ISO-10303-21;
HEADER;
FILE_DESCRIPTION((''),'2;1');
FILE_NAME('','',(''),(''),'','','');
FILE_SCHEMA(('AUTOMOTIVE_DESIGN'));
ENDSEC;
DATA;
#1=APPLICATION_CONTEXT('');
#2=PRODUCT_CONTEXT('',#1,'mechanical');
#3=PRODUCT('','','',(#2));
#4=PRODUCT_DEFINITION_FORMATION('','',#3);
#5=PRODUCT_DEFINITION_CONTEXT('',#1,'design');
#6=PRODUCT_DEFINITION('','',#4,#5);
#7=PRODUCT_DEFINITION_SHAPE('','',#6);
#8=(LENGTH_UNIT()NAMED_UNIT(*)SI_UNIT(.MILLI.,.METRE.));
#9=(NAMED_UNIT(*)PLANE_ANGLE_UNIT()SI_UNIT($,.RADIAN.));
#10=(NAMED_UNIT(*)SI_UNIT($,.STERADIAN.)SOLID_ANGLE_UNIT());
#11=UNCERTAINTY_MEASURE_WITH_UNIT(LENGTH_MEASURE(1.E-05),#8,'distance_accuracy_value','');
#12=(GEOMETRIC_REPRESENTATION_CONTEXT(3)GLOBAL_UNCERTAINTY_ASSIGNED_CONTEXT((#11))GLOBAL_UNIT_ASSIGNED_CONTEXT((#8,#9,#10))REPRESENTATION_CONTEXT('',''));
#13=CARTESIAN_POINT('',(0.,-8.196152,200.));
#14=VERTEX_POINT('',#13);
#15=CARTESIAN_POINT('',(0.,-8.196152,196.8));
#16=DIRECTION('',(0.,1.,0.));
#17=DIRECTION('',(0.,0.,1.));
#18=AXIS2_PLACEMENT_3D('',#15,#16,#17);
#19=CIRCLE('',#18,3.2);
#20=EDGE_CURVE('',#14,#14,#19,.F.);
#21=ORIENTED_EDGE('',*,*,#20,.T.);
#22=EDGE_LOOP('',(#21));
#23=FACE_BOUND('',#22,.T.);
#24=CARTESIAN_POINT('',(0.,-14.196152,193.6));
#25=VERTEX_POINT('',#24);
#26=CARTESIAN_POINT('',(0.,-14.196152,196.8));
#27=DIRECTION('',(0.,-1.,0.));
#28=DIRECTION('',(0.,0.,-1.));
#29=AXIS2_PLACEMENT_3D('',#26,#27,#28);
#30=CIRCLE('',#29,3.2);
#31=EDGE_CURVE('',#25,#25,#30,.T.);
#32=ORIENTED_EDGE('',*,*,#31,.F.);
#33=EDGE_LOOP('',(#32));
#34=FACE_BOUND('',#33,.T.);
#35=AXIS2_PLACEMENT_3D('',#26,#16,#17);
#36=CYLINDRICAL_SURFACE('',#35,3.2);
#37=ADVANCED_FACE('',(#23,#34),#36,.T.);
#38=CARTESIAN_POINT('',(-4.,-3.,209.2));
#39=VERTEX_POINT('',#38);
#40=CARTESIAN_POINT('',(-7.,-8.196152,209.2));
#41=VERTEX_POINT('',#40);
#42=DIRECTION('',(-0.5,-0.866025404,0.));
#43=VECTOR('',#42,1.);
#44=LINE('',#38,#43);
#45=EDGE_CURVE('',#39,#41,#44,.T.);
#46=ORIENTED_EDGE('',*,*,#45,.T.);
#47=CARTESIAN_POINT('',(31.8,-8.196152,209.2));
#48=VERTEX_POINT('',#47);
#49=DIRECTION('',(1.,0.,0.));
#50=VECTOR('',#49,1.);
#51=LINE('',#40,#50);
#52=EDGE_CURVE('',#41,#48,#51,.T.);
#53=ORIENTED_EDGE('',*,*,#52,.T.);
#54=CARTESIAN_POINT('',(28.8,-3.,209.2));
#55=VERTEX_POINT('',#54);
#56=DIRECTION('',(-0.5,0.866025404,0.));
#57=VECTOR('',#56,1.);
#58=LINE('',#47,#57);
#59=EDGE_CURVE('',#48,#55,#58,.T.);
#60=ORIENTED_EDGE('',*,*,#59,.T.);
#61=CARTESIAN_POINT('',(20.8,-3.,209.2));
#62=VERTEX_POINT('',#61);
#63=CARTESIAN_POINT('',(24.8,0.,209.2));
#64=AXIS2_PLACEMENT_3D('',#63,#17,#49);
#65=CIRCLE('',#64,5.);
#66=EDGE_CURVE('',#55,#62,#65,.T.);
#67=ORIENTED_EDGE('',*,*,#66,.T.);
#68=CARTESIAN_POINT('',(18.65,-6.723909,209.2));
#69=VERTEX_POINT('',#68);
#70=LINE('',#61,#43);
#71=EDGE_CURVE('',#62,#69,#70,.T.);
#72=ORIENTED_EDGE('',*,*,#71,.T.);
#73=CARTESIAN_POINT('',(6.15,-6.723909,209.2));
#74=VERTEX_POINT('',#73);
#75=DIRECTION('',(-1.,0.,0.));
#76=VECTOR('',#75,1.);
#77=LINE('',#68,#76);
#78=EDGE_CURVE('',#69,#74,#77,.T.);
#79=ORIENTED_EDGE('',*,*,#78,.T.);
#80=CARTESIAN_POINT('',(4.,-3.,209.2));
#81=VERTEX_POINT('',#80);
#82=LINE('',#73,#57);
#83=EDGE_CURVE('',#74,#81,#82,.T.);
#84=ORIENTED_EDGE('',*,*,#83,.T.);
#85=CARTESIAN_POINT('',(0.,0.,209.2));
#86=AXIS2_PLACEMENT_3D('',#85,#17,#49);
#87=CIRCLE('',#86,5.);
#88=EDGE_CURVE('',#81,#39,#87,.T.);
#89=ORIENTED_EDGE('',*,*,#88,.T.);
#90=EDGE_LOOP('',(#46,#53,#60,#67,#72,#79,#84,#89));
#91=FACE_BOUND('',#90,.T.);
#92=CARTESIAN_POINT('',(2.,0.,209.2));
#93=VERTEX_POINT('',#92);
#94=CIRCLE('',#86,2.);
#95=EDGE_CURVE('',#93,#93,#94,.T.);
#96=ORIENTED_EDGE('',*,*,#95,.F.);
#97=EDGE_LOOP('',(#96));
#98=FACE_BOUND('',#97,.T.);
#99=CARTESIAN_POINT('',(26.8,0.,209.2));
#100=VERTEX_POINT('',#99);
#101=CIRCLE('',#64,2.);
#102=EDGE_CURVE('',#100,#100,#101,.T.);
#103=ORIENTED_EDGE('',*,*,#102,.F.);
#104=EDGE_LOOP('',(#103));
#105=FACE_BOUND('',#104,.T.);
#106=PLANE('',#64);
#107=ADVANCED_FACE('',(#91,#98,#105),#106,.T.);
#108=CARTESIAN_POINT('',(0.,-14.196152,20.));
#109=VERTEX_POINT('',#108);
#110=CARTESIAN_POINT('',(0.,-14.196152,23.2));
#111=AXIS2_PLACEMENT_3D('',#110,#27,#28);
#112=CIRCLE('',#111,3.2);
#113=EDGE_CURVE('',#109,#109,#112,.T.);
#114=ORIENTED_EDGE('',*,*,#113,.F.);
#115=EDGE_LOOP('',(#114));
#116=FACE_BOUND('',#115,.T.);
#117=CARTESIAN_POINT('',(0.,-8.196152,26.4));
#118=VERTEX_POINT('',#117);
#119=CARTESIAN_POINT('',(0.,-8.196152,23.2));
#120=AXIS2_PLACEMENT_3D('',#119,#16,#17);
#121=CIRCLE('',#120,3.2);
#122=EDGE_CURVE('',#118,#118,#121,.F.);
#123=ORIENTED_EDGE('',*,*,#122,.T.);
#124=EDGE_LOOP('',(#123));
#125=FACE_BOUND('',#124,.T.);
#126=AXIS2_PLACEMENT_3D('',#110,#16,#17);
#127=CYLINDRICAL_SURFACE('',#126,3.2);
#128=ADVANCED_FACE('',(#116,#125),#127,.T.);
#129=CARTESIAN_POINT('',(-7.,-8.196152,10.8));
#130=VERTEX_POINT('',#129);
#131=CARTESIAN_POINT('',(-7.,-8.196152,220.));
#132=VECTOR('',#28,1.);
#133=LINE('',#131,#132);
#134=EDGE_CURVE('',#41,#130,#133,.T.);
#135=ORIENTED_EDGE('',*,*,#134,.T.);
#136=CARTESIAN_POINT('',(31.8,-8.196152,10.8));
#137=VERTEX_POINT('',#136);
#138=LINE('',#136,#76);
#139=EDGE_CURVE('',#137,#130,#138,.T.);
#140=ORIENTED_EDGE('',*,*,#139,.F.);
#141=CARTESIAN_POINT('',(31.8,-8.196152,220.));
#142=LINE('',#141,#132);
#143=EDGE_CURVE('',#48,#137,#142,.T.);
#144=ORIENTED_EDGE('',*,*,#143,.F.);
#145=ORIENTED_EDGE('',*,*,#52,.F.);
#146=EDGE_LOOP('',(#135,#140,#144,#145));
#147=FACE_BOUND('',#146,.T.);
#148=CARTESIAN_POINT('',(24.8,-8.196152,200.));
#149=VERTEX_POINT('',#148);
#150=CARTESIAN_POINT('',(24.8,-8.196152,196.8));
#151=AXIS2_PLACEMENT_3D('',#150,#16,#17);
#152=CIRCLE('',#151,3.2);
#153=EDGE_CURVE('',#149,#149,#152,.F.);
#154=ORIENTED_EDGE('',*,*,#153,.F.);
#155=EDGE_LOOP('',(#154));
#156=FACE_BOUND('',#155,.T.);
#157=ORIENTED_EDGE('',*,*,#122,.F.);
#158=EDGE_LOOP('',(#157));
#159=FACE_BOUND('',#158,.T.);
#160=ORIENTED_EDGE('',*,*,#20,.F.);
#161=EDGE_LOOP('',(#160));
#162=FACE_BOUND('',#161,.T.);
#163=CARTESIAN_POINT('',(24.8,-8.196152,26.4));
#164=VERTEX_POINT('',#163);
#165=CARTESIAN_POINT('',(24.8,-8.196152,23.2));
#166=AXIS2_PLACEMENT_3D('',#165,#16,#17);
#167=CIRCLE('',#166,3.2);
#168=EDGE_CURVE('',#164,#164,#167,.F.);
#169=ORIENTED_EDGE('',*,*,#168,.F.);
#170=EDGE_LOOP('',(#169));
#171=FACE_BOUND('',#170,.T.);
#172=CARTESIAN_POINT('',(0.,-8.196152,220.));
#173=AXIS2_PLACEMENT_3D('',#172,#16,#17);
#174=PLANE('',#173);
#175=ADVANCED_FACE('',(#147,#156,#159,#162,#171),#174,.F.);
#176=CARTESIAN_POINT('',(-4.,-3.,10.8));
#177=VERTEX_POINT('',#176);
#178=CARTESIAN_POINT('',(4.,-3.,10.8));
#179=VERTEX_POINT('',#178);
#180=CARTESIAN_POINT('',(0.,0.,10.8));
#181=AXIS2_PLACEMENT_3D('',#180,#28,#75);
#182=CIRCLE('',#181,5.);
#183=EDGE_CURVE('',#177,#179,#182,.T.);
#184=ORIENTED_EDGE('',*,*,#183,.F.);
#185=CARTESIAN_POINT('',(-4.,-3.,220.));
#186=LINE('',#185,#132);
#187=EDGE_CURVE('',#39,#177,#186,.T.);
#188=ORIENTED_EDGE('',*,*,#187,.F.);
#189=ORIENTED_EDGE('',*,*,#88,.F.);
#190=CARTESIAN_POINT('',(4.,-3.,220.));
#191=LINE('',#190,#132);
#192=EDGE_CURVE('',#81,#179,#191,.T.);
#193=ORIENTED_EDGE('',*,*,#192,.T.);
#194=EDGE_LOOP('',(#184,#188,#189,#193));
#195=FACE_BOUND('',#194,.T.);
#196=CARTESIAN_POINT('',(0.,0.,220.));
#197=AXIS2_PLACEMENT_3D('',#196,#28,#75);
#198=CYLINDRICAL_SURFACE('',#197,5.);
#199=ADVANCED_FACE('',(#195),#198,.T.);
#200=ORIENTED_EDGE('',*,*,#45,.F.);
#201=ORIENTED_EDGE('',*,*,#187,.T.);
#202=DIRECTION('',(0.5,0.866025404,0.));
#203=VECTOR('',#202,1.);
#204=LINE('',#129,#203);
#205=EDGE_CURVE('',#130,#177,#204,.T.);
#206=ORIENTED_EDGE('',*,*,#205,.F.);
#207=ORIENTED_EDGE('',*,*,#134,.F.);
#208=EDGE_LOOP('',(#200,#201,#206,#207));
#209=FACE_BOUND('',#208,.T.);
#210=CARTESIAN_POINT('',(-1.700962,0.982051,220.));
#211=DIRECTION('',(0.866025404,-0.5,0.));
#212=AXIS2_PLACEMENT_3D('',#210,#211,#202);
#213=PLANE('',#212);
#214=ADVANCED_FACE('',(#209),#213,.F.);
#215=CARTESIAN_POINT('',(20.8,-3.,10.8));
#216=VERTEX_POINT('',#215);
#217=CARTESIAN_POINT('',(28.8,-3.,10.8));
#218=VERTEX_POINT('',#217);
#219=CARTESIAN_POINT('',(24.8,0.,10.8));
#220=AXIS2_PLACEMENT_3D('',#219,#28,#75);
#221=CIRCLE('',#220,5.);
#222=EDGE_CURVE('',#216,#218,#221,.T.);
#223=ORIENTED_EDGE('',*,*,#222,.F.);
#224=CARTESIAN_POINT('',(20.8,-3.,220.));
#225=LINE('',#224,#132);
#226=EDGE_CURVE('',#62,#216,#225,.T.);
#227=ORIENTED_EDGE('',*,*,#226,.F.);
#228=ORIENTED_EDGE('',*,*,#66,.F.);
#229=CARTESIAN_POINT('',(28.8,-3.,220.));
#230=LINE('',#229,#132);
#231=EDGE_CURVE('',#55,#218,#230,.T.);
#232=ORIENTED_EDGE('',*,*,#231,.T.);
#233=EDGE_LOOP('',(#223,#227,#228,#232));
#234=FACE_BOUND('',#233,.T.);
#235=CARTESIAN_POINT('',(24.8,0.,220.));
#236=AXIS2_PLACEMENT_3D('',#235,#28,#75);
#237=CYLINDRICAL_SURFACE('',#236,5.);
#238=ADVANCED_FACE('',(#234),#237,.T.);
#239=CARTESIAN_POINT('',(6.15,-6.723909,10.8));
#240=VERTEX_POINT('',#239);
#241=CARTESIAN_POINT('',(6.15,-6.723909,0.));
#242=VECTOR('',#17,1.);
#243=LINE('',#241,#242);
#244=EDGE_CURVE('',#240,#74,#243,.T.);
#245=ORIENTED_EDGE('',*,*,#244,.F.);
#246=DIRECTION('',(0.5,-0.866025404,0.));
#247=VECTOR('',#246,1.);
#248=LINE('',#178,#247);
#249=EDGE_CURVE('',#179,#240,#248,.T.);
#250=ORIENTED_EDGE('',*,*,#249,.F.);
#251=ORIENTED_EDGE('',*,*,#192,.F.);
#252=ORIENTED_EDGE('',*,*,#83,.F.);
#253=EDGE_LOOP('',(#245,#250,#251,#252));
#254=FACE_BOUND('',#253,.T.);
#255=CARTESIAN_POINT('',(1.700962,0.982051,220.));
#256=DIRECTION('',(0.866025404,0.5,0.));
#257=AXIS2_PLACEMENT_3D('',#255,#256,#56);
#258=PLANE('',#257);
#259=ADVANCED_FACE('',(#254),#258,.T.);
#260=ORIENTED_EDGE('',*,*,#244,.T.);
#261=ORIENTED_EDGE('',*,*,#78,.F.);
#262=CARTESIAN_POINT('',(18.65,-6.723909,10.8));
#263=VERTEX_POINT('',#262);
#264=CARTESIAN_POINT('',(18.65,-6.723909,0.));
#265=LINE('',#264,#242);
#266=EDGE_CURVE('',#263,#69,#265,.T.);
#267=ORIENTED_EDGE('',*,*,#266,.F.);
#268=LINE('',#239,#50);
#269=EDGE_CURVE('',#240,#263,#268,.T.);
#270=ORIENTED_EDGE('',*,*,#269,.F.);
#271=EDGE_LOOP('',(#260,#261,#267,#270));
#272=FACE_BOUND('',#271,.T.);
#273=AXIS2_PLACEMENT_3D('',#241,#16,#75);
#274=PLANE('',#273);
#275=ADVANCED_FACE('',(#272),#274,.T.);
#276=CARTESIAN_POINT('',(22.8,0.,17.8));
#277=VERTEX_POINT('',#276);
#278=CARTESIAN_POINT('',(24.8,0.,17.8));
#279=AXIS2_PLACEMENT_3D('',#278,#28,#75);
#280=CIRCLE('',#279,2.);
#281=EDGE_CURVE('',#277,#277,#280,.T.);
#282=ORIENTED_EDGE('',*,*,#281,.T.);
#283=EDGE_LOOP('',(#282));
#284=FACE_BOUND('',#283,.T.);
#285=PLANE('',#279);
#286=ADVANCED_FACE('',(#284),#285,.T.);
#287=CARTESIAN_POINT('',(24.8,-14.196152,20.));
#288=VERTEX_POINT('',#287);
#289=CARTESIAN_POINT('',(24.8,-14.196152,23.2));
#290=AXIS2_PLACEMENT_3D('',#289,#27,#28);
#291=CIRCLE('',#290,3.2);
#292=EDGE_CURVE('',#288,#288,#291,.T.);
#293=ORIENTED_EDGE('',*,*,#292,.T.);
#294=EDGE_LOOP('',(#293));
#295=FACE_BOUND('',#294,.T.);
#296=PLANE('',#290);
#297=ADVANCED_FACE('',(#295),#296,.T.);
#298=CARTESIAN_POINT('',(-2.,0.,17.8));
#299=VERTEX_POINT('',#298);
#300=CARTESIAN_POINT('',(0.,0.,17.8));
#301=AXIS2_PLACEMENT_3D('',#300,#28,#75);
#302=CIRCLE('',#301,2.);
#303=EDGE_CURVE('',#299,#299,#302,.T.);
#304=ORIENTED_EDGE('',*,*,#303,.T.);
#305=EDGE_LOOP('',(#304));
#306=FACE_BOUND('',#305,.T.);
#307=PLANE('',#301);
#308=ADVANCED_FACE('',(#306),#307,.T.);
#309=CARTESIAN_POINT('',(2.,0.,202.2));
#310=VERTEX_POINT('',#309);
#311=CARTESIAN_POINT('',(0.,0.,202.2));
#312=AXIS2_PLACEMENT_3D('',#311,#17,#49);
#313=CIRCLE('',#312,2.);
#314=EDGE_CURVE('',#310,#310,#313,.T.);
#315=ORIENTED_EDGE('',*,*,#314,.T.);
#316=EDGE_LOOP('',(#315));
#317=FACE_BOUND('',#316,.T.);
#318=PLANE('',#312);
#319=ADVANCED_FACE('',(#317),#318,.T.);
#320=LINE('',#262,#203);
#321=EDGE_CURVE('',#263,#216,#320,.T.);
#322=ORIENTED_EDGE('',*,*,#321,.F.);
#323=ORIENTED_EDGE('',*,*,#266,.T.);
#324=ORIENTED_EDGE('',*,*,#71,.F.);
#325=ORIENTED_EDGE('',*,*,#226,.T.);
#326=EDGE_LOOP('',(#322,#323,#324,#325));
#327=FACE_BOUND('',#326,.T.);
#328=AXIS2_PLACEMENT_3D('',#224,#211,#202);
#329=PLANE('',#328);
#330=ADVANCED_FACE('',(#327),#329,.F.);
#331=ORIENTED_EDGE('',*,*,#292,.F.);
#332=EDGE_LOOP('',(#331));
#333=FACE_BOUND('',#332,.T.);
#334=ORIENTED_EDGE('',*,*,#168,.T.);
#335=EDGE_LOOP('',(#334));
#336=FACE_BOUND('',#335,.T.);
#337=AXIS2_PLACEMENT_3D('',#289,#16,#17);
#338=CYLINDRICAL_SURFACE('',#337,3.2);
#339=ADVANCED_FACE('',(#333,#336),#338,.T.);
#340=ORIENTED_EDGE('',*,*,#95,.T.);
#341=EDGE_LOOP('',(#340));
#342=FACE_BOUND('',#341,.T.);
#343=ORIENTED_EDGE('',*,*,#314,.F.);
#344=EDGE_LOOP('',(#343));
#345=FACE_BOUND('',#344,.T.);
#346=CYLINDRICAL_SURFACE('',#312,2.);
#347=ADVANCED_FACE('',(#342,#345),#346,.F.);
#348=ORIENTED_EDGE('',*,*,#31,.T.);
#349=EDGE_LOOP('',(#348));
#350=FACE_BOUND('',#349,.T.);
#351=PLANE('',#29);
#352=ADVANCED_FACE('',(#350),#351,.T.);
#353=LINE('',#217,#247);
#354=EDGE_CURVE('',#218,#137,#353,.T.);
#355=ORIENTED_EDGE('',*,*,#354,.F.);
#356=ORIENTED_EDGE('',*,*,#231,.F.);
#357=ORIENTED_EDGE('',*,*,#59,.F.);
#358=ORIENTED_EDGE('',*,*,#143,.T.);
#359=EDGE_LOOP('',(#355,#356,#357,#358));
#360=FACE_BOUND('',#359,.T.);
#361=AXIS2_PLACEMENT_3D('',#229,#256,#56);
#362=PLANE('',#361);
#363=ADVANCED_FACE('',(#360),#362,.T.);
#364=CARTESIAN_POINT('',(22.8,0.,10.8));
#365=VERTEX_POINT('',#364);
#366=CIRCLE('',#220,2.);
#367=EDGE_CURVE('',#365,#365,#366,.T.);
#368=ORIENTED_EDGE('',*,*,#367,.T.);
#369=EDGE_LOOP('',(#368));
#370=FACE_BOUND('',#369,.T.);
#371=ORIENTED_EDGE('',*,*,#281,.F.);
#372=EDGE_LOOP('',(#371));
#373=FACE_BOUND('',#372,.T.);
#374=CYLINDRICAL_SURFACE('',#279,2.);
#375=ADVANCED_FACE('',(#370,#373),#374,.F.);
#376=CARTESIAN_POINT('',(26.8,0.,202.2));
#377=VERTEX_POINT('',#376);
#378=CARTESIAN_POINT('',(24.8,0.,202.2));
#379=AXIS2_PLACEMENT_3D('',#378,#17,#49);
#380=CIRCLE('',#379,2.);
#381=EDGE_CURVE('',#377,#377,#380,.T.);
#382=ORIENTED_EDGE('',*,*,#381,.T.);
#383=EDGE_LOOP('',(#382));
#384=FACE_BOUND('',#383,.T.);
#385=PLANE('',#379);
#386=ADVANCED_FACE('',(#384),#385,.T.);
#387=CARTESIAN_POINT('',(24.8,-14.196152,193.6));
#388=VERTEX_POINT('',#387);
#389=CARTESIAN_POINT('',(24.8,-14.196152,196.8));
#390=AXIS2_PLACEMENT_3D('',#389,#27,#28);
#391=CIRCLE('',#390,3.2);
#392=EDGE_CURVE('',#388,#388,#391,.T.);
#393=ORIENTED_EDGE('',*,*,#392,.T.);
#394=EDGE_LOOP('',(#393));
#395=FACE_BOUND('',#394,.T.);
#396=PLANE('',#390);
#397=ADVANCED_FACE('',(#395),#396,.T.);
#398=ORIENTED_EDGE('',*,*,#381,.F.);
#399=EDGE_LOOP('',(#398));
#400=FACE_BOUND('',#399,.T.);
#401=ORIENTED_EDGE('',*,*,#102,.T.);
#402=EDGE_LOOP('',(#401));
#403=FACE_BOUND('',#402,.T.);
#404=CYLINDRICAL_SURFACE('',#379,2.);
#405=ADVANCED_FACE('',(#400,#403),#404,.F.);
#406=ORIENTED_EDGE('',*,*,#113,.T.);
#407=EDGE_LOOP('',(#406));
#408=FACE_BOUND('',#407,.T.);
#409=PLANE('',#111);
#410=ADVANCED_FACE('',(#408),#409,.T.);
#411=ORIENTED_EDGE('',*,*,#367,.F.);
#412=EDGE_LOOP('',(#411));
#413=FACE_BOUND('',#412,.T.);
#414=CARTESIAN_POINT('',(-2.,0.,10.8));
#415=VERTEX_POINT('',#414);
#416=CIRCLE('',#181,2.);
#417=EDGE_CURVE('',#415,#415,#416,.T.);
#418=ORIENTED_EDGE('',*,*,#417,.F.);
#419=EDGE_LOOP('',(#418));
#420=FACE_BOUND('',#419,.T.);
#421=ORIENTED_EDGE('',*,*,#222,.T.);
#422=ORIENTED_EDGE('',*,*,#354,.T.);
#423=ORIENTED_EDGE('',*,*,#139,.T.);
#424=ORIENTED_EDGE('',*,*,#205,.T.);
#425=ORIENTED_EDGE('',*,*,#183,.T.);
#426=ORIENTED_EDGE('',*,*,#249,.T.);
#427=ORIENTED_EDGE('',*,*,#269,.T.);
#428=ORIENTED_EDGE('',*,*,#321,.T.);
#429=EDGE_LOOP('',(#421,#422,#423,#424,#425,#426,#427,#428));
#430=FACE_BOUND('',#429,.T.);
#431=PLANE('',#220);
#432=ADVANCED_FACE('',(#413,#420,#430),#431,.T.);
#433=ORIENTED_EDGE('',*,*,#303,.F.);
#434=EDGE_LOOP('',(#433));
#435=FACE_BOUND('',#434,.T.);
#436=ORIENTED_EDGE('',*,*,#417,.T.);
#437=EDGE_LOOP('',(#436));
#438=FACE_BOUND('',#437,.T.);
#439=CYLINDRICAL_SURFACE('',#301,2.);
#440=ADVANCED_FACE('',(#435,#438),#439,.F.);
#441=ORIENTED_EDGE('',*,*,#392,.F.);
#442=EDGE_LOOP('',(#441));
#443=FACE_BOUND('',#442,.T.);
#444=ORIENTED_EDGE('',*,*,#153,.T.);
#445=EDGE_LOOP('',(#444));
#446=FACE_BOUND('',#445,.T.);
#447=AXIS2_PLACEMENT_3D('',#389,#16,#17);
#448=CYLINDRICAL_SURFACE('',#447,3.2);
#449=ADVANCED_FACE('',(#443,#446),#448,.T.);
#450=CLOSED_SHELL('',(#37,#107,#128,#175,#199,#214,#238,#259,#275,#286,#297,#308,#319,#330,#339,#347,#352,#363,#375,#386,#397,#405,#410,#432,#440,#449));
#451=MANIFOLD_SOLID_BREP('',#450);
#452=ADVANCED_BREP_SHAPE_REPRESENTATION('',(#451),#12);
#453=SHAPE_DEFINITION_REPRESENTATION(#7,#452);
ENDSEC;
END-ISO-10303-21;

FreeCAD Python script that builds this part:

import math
import FreeCAD as App
import Part
import Sketcher
from FreeCAD import Vector
Q = App.Units.Quantity

doc = App.newDocument("Part")
body = doc.addObject("PartDesign::Body", "Body")
body.AllowCompound = True

# Sketch on XY plane
sketch1 = doc.addObject("Sketcher::SketchObject", "Sketch")
body.addObject(sketch1)
sketch1.AttachmentSupport = (doc.XY_Plane, [""])
sketch1.MapMode = "FlatFace"
sketch1.addGeometry(Part.LineSegment(Vector(-4, -3, 0), Vector(-7, -8, 0)), False)
sketch1.addGeometry(Part.LineSegment(Vector(-7, -8, 0), Vector(7, -8, 0)), False)
sketch1.addGeometry(Part.LineSegment(Vector(7, -8, 0), Vector(4, -3, 0)), False)
sketch1.addGeometry(Part.ArcOfCircle(Part.Circle(Vector(0, 0, 0), Vector(0, 0, 1), 5), math.radians(-37), math.radians(217)), False)
sketch1.addGeometry(Part.LineSegment(Vector(32, -8, 0), Vector(29, -3, 0)), False)
sketch1.addGeometry(Part.ArcOfCircle(Part.Circle(Vector(25, 0, 0), Vector(0, 0, 1), 5), math.radians(-37), math.radians(217)), False)
sketch1.addGeometry(Part.LineSegment(Vector(21, -3, 0), Vector(18, -8, 0)), False)
sketch1.addGeometry(Part.LineSegment(Vector(18, -8, 0), Vector(32, -8, 0)), False)
sketch1.addConstraint(Sketcher.Constraint("Coincident", 0, 2, 1, 1))
sketch1.addConstraint(Sketcher.Constraint("Coincident", 1, 2, 2, 1))
sketch1.addConstraint(Sketcher.Constraint("Coincident", 2, 2, 3, 1))
sketch1.addConstraint(Sketcher.Constraint("Coincident", 3, 2, 0, 1))
sketch1.addConstraint(Sketcher.Constraint("Coincident", 4, 2, 5, 1))
sketch1.addConstraint(Sketcher.Constraint("Coincident", 5, 2, 6, 1))
sketch1.addConstraint(Sketcher.Constraint("Coincident", 6, 2, 7, 1))
sketch1.addConstraint(Sketcher.Constraint("Coincident", 7, 2, 4, 1))
sketch1.addConstraint(Sketcher.Constraint("Horizontal", 1))
sketch1.addConstraint(Sketcher.Constraint("Horizontal", 7))
sketch1.addConstraint(Sketcher.Constraint("Coincident", 3, 3, -1, 1))
sketch1.addConstraint(Sketcher.Constraint("Equal", 3, 5))
sketch1.addConstraint(Sketcher.Constraint("PointOnObject", 5, 3, -1))
sketch1.addConstraint(Sketcher.Constraint("Parallel", 2, 4))
sketch1.addConstraint(Sketcher.Constraint("Parallel", 0, 6))
sketch1.addConstraint(Sketcher.Constraint("Horizontal", 2, 2, 3, 2))
sketch1.addConstraint(Sketcher.Constraint("Horizontal", 3, 2, 4, 2))
sketch1.addConstraint(Sketcher.Constraint("Horizontal", 4, 2, 5, 2))
sketch1.addConstraint(Sketcher.Constraint("Horizontal", 1, 2, 6, 2))
sketch1.addConstraint(Sketcher.Constraint("Equal", 0, 2))
sketch1.addConstraint(Sketcher.Constraint("Radius", 3, 5.0))
sketch1.addConstraint(Sketcher.Constraint("DistanceX", 1, 1, 1, 2, 14.0))
sketch1.addConstraint(Sketcher.Constraint("Angle", 0, Q("-120 deg")))
sketch1.addConstraint(Sketcher.Constraint("Distance", 0, 6.0))
sketch1.addConstraint(Sketcher.Constraint("DistanceX", -1, 1, 5, 3, 24.8))
pad1 = doc.addObject("PartDesign::Pad", "Pad")
body.addObject(pad1)
pad1.Profile = sketch1
pad1.Length = 220

# Sketch on XZ plane
sketch2 = doc.addObject("Sketcher::SketchObject", "Sketch001")
body.addObject(sketch2)
sketch2.AttachmentSupport = (doc.XZ_Plane, [""])
sketch2.MapMode = "FlatFace"
sketch2.AttachmentOffset = App.Placement(Vector(0, 0, 8.196152), App.Rotation())
sketch2.addGeometry(Part.Circle(Vector(0, 196.8, 0), Vector(0, 0, 1), 3.2), False)
sketch2.addGeometry(Part.Circle(Vector(24.8, 196.8, 0), Vector(0, 0, 1), 3.2), False)
sketch2.addGeometry(Part.Circle(Vector(24.8, 172, 0), Vector(0, 0, 1), 3.2), False)
sketch2.addGeometry(Part.Circle(Vector(24.8, 147.2, 0), Vector(0, 0, 1), 3.2), False)
sketch2.addGeometry(Part.Circle(Vector(24.8, 122.4, 0), Vector(0, 0, 1), 3.2), False)
sketch2.addGeometry(Part.Circle(Vector(24.8, 97.6, 0), Vector(0, 0, 1), 3.2), False)
sketch2.addGeometry(Part.Circle(Vector(24.8, 72.8, 0), Vector(0, 0, 1), 3.2), False)
sketch2.addGeometry(Part.Circle(Vector(24.8, 48, 0), Vector(0, 0, 1), 3.2), False)
sketch2.addGeometry(Part.Circle(Vector(24.8, 23.2, 0), Vector(0, 0, 1), 3.2), False)
sketch2.addGeometry(Part.Circle(Vector(0, 172, 0), Vector(0, 0, 1), 3.2), False)
sketch2.addGeometry(Part.Circle(Vector(0, 147.2, 0), Vector(0, 0, 1), 3.2), False)
sketch2.addGeometry(Part.Circle(Vector(0, 122.4, 0), Vector(0, 0, 1), 3.2), False)
sketch2.addGeometry(Part.Circle(Vector(0, 97.6, 0), Vector(0, 0, 1), 3.2), False)
sketch2.addGeometry(Part.Circle(Vector(0, 72.8, 0), Vector(0, 0, 1), 3.2), False)
sketch2.addGeometry(Part.Circle(Vector(0, 48, 0), Vector(0, 0, 1), 3.2), False)
sketch2.addGeometry(Part.Circle(Vector(0, 23.2, 0), Vector(0, 0, 1), 3.2), False)
sketch2.addConstraint(Sketcher.Constraint("Equal", 0, 1))
sketch2.addConstraint(Sketcher.Constraint("Equal", 1, 2))
sketch2.addConstraint(Sketcher.Constraint("Equal", 2, 3))
sketch2.addConstraint(Sketcher.Constraint("Equal", 3, 4))
sketch2.addConstraint(Sketcher.Constraint("Equal", 4, 5))
sketch2.addConstraint(Sketcher.Constraint("Equal", 5, 6))
sketch2.addConstraint(Sketcher.Constraint("Equal", 6, 7))
sketch2.addConstraint(Sketcher.Constraint("Equal", 7, 8))
sketch2.addConstraint(Sketcher.Constraint("Equal", 8, 9))
sketch2.addConstraint(Sketcher.Constraint("Equal", 9, 10))
sketch2.addConstraint(Sketcher.Constraint("Equal", 10, 11))
sketch2.addConstraint(Sketcher.Constraint("Equal", 11, 12))
sketch2.addConstraint(Sketcher.Constraint("Equal", 12, 13))
sketch2.addConstraint(Sketcher.Constraint("Equal", 13, 14))
sketch2.addConstraint(Sketcher.Constraint("Equal", 14, 15))
sketch2.addConstraint(Sketcher.Constraint("PointOnObject", 0, 3, -2))
sketch2.addConstraint(Sketcher.Constraint("PointOnObject", 9, 3, -2))
sketch2.addConstraint(Sketcher.Constraint("PointOnObject", 10, 3, -2))
sketch2.addConstraint(Sketcher.Constraint("PointOnObject", 11, 3, -2))
sketch2.addConstraint(Sketcher.Constraint("PointOnObject", 12, 3, -2))
sketch2.addConstraint(Sketcher.Constraint("PointOnObject", 13, 3, -2))
sketch2.addConstraint(Sketcher.Constraint("PointOnObject", 14, 3, -2))
sketch2.addConstraint(Sketcher.Constraint("PointOnObject", 15, 3, -2))
sketch2.addConstraint(Sketcher.Constraint("Horizontal", 0, 3, 1, 3))
sketch2.addConstraint(Sketcher.Constraint("Horizontal", 2, 3, 9, 3))
sketch2.addConstraint(Sketcher.Constraint("Horizontal", 3, 3, 10, 3))
sketch2.addConstraint(Sketcher.Constraint("Horizontal", 4, 3, 11, 3))
sketch2.addConstraint(Sketcher.Constraint("Horizontal", 5, 3, 12, 3))
sketch2.addConstraint(Sketcher.Constraint("Horizontal", 6, 3, 13, 3))
sketch2.addConstraint(Sketcher.Constraint("Horizontal", 7, 3, 14, 3))
sketch2.addConstraint(Sketcher.Constraint("Horizontal", 8, 3, 15, 3))
sketch2.addConstraint(Sketcher.Constraint("Vertical", 1, 3, 2, 3))
sketch2.addConstraint(Sketcher.Constraint("Vertical", 2, 3, 3, 3))
sketch2.addConstraint(Sketcher.Constraint("Vertical", 3, 3, 4, 3))
sketch2.addConstraint(Sketcher.Constraint("Vertical", 4, 3, 5, 3))
sketch2.addConstraint(Sketcher.Constraint("Vertical", 5, 3, 6, 3))
sketch2.addConstraint(Sketcher.Constraint("Vertical", 6, 3, 7, 3))
sketch2.addConstraint(Sketcher.Constraint("Vertical", 7, 3, 8, 3))
sketch2.addConstraint(Sketcher.Constraint("Diameter", 0, 6.4))
sketch2.addConstraint(Sketcher.Constraint("DistanceY", -1, 1, 2, 3, 172.0))
sketch2.addConstraint(Sketcher.Constraint("DistanceY", -1, 1, 7, 3, 48.0))
sketch2.addConstraint(Sketcher.Constraint("DistanceY", 6, 3, 1, 3, 124.0))
sketch2.addConstraint(Sketcher.Constraint("DistanceY", 8, 3, 3, 3, 124.0))
sketch2.addConstraint(Sketcher.Constraint("DistanceY", -1, 1, 0, 3, 196.8))
sketch2.addConstraint(Sketcher.Constraint("DistanceX", -1, 1, 1, 3, 24.8))
sketch2.addConstraint(Sketcher.Constraint("DistanceY", -1, 1, 3, 3, 147.2))
sketch2.addConstraint(Sketcher.Constraint("DistanceY", -1, 1, 4, 3, 122.4))
sketch2.addConstraint(Sketcher.Constraint("DistanceY", -1, 1, 5, 3, 97.6))
pad2 = doc.addObject("PartDesign::Pad", "Pad001")
body.addObject(pad2)
pad2.Profile = sketch2
pad2.Length = 6

# Sketch on XY plane
sketch3 = doc.addObject("Sketcher::SketchObject", "Sketch002")
body.addObject(sketch3)
sketch3.AttachmentSupport = (doc.XY_Plane, [""])
sketch3.MapMode = "FlatFace"
sketch3.AttachmentOffset = App.Placement(Vector(0, 0, 220), App.Rotation())
sketch3.addGeometry(Part.LineSegment(Vector(18.6, -8.2, 0), Vector(18.6, -6.7, 0)), False)
sketch3.addGeometry(Part.LineSegment(Vector(18.6, -6.7, 0), Vector(6.2, -6.7, 0)), False)
sketch3.addGeometry(Part.LineSegment(Vector(6.2, -6.7, 0), Vector(6.2, -8.2, 0)), False)
sketch3.addGeometry(Part.LineSegment(Vector(6.2, -8.2, 0), Vector(18.6, -8.2, 0)), False)
sketch3.addConstraint(Sketcher.Constraint("Coincident", 0, 2, 1, 1))
sketch3.addConstraint(Sketcher.Constraint("Coincident", 1, 2, 2, 1))
sketch3.addConstraint(Sketcher.Constraint("Coincident", 2, 2, 3, 1))
sketch3.addConstraint(Sketcher.Constraint("Coincident", 3, 2, 0, 1))
sketch3.addConstraint(Sketcher.Constraint("Vertical", 0))
sketch3.addConstraint(Sketcher.Constraint("Horizontal", 1))
sketch3.addConstraint(Sketcher.Constraint("Vertical", 2))
sketch3.addConstraint(Sketcher.Constraint("Horizontal", 3))
sketch3.addConstraint(Sketcher.Constraint("DistanceX", 1, 2, 1, 1, 12.5))
sketch3.addConstraint(Sketcher.Constraint("DistanceX", -1, 1, 0, 2, 18.65))
sketch3.addConstraint(Sketcher.Constraint("DistanceY", 0, 1, 0, 2, 1.472243))
sketch3.addConstraint(Sketcher.Constraint("DistanceY", 0, 2, -1, 1, 6.723909))
pad3 = doc.addObject("PartDesign::Pad", "Pad002")
body.addObject(pad3)
pad3.Profile = sketch3
pad3.Length = 220
pad3.Reversed = True

# Sketch on XY plane
sketch4 = doc.addObject("Sketcher::SketchObject", "Sketch003")
body.addObject(sketch4)
sketch4.AttachmentSupport = (doc.XY_Plane, [""])
sketch4.MapMode = "FlatFace"
sketch4.addGeometry(Part.Circle(Vector(0, 0, 0), Vector(0, 0, 1), 1.4), False)
sketch4.addGeometry(Part.Circle(Vector(24.8, 0, 0), Vector(0, 0, 1), 1.4), False)
sketch4.addConstraint(Sketcher.Constraint("Coincident", 0, 3, -1, 1))
sketch4.addConstraint(Sketcher.Constraint("Equal", 0, 1))
sketch4.addConstraint(Sketcher.Constraint("PointOnObject", 1, 3, -1))
sketch4.addConstraint(Sketcher.Constraint("Diameter", 0, 2.74))
sketch4.addConstraint(Sketcher.Constraint("DistanceX", -1, 1, 1, 3, 24.8))
pocket1 = doc.addObject("PartDesign::Pocket", "Pocket")
body.addObject(pocket1)
pocket1.Profile = sketch4
pocket1.Length = 7
pocket1.Reversed = True

# Sketch on XY plane
sketch5 = doc.addObject("Sketcher::SketchObject", "Sketch004")
body.addObject(sketch5)
sketch5.AttachmentSupport = (doc.XY_Plane, [""])
sketch5.MapMode = "FlatFace"
sketch5.AttachmentOffset = App.Placement(Vector(0, 0, 220), App.Rotation())
sketch5.addGeometry(Part.Circle(Vector(0, 0, 0), Vector(0, 0, 1), 1.4), False)
sketch5.addGeometry(Part.Circle(Vector(24.8, 0, 0), Vector(0, 0, 1), 1.4), False)
sketch5.addConstraint(Sketcher.Constraint("Coincident", 0, 3, -1, 1))
sketch5.addConstraint(Sketcher.Constraint("Equal", 0, 1))
sketch5.addConstraint(Sketcher.Constraint("PointOnObject", 1, 3, -1))
sketch5.addConstraint(Sketcher.Constraint("Diameter", 0, 2.74))
sketch5.addConstraint(Sketcher.Constraint("DistanceX", -1, 1, 1, 3, 24.8))
pocket2 = doc.addObject("PartDesign::Pocket", "Pocket001")
body.addObject(pocket2)
pocket2.Profile = sketch5
pocket2.Length = 7

# Sketch on XZ plane
sketch6 = doc.addObject("Sketcher::SketchObject", "Sketch005")
body.addObject(sketch6)
sketch6.AttachmentSupport = (doc.XZ_Plane, [""])
sketch6.MapMode = "FlatFace"
sketch6.AttachmentOffset = App.Placement(Vector(0, 0, 14.196152), App.Rotation())
sketch6.addGeometry(Part.Circle(Vector(0, 172, 0), Vector(0, 0, 1), 3.2), False)
sketch6.addGeometry(Part.Circle(Vector(24.8, 172, 0), Vector(0, 0, 1), 3.2), False)
sketch6.addGeometry(Part.Circle(Vector(24.8, 147.2, 0), Vector(0, 0, 1), 3.2), False)
sketch6.addGeometry(Part.Circle(Vector(24.8, 122.4, 0), Vector(0, 0, 1), 3.2), False)
sketch6.addGeometry(Part.Circle(Vector(24.8, 97.6, 0), Vector(0, 0, 1), 3.2), False)
sketch6.addGeometry(Part.Circle(Vector(24.8, 72.8, 0), Vector(0, 0, 1), 3.2), False)
sketch6.addGeometry(Part.Circle(Vector(24.8, 48, 0), Vector(0, 0, 1), 3.2), False)
sketch6.addGeometry(Part.Circle(Vector(0, 147.2, 0), Vector(0, 0, 1), 3.2), False)
sketch6.addGeometry(Part.Circle(Vector(0, 122.4, 0), Vector(0, 0, 1), 3.2), False)
sketch6.addGeometry(Part.Circle(Vector(0, 97.6, 0), Vector(0, 0, 1), 3.2), False)
sketch6.addGeometry(Part.Circle(Vector(0, 72.8, 0), Vector(0, 0, 1), 3.2), False)
sketch6.addGeometry(Part.Circle(Vector(0, 48, 0), Vector(0, 0, 1), 3.2), False)
sketch6.addConstraint(Sketcher.Constraint("Equal", 0, 1))
sketch6.addConstraint(Sketcher.Constraint("Equal", 1, 2))
sketch6.addConstraint(Sketcher.Constraint("Equal", 2, 3))
sketch6.addConstraint(Sketcher.Constraint("Equal", 3, 4))
sketch6.addConstraint(Sketcher.Constraint("Equal", 4, 5))
sketch6.addConstraint(Sketcher.Constraint("Equal", 5, 6))
sketch6.addConstraint(Sketcher.Constraint("Equal", 6, 7))
sketch6.addConstraint(Sketcher.Constraint("Equal", 7, 8))
sketch6.addConstraint(Sketcher.Constraint("Equal", 8, 9))
sketch6.addConstraint(Sketcher.Constraint("Equal", 9, 10))
sketch6.addConstraint(Sketcher.Constraint("Equal", 10, 11))
sketch6.addConstraint(Sketcher.Constraint("PointOnObject", 0, 3, -2))
sketch6.addConstraint(Sketcher.Constraint("PointOnObject", 7, 3, -2))
sketch6.addConstraint(Sketcher.Constraint("PointOnObject", 8, 3, -2))
sketch6.addConstraint(Sketcher.Constraint("PointOnObject", 9, 3, -2))
sketch6.addConstraint(Sketcher.Constraint("PointOnObject", 10, 3, -2))
sketch6.addConstraint(Sketcher.Constraint("PointOnObject", 11, 3, -2))
sketch6.addConstraint(Sketcher.Constraint("Horizontal", 0, 3, 1, 3))
sketch6.addConstraint(Sketcher.Constraint("Horizontal", 2, 3, 7, 3))
sketch6.addConstraint(Sketcher.Constraint("Horizontal", 3, 3, 8, 3))
sketch6.addConstraint(Sketcher.Constraint("Horizontal", 4, 3, 9, 3))
sketch6.addConstraint(Sketcher.Constraint("Horizontal", 5, 3, 10, 3))
sketch6.addConstraint(Sketcher.Constraint("Horizontal", 6, 3, 11, 3))
sketch6.addConstraint(Sketcher.Constraint("Vertical", 1, 3, 2, 3))
sketch6.addConstraint(Sketcher.Constraint("Vertical", 2, 3, 3, 3))
sketch6.addConstraint(Sketcher.Constraint("Vertical", 3, 3, 4, 3))
sketch6.addConstraint(Sketcher.Constraint("Vertical", 4, 3, 5, 3))
sketch6.addConstraint(Sketcher.Constraint("Vertical", 5, 3, 6, 3))
sketch6.addConstraint(Sketcher.Constraint("Diameter", 0, 6.4))
sketch6.addConstraint(Sketcher.Constraint("DistanceY", -1, 1, 0, 3, 172.0))
sketch6.addConstraint(Sketcher.Constraint("DistanceY", -1, 1, 6, 3, 48.0))
sketch6.addConstraint(Sketcher.Constraint("DistanceX", -1, 1, 1, 3, 24.8))
sketch6.addConstraint(Sketcher.Constraint("DistanceY", -1, 1, 2, 3, 147.2))
sketch6.addConstraint(Sketcher.Constraint("DistanceY", -1, 1, 3, 3, 122.4))
sketch6.addConstraint(Sketcher.Constraint("DistanceY", -1, 1, 4, 3, 97.6))
sketch6.addConstraint(Sketcher.Constraint("DistanceY", -1, 1, 5, 3, 72.8))
pocket3 = doc.addObject("PartDesign::Pocket", "Pocket002")
body.addObject(pocket3)
pocket3.Profile = sketch6
pocket3.Length = 6

# Sketch on XY plane
sketch7 = doc.addObject("Sketcher::SketchObject", "Sketch006")
body.addObject(sketch7)
sketch7.AttachmentSupport = (doc.XY_Plane, [""])
sketch7.MapMode = "FlatFace"
sketch7.addGeometry(Part.LineSegment(Vector(28.8, -3, 0), Vector(31.8, -8.2, 0)), False)
sketch7.addGeometry(Part.LineSegment(Vector(31.8, -8.2, 0), Vector(-7, -8.2, 0)), False)
sketch7.addGeometry(Part.LineSegment(Vector(-7, -8.2, 0), Vector(-4, -3, 0)), False)
sketch7.addGeometry(Part.ArcOfCircle(Part.Circle(Vector(0, 0, 0), Vector(0, 0, 1), 5), math.radians(-37), math.radians(217)), False)
sketch7.addGeometry(Part.LineSegment(Vector(4, -3, 0), Vector(6.2, -6.7, 0)), False)
sketch7.addGeometry(Part.LineSegment(Vector(6.2, -6.7, 0), Vector(18.6, -6.7, 0)), False)
sketch7.addGeometry(Part.LineSegment(Vector(18.6, -6.7, 0), Vector(20.8, -3, 0)), False)
sketch7.addGeometry(Part.ArcOfCircle(Part.Circle(Vector(24.8, 0, 0), Vector(0, 0, 1), 5), math.radians(-37), math.radians(217)), False)
sketch7.addConstraint(Sketcher.Constraint("Coincident", 0, 2, 1, 1))
sketch7.addConstraint(Sketcher.Constraint("Coincident", 1, 2, 2, 1))
sketch7.addConstraint(Sketcher.Constraint("Coincident", 2, 2, 3, 2))
sketch7.addConstraint(Sketcher.Constraint("Coincident", 3, 1, 4, 1))
sketch7.addConstraint(Sketcher.Constraint("Coincident", 4, 2, 5, 1))
sketch7.addConstraint(Sketcher.Constraint("Coincident", 5, 2, 6, 1))
sketch7.addConstraint(Sketcher.Constraint("Coincident", 6, 2, 7, 2))
sketch7.addConstraint(Sketcher.Constraint("Coincident", 7, 1, 0, 1))
sketch7.addConstraint(Sketcher.Constraint("Horizontal", 1))
sketch7.addConstraint(Sketcher.Constraint("Horizontal", 5))
sketch7.addConstraint(Sketcher.Constraint("Coincident", 3, 3, -1, 1))
sketch7.addConstraint(Sketcher.Constraint("Equal", 3, 7))
sketch7.addConstraint(Sketcher.Constraint("PointOnObject", 7, 3, -1))
sketch7.addConstraint(Sketcher.Constraint("Parallel", 0, 4))
sketch7.addConstraint(Sketcher.Constraint("Parallel", 2, 6))
sketch7.addConstraint(Sketcher.Constraint("Horizontal", 2, 2, 3, 1))
sketch7.addConstraint(Sketcher.Constraint("Horizontal", 3, 1, 6, 2))
sketch7.addConstraint(Sketcher.Constraint("Horizontal", 6, 2, 7, 1))
sketch7.addConstraint(Sketcher.Constraint("Equal", 0, 2))
sketch7.addConstraint(Sketcher.Constraint("Radius", 3, 5.0))
sketch7.addConstraint(Sketcher.Constraint("Angle", 0, Q("-60 deg")))
sketch7.addConstraint(Sketcher.Constraint("Distance", 0, 6.0))
sketch7.addConstraint(Sketcher.Constraint("DistanceX", 1, 2, 1, 1, 38.8))
sketch7.addConstraint(Sketcher.Constraint("DistanceX", 5, 1, 5, 2, 12.5))
sketch7.addConstraint(Sketcher.Constraint("DistanceX", 1, 2, -1, 1, 7.0))
pocket4 = doc.addObject("PartDesign::Pocket", "Pocket003")
body.addObject(pocket4)
pocket4.Profile = sketch7
pocket4.Length = 10.8
pocket4.Reversed = True

# Sketch on XY plane
sketch8 = doc.addObject("Sketcher::SketchObject", "Sketch007")
body.addObject(sketch8)
sketch8.AttachmentSupport = (doc.XY_Plane, [""])
sketch8.MapMode = "FlatFace"
sketch8.AttachmentOffset = App.Placement(Vector(0, 0, 220), App.Rotation())
sketch8.addGeometry(Part.LineSegment(Vector(20.8, -3, 0), Vector(18.6, -6.7, 0)), False)
sketch8.addGeometry(Part.LineSegment(Vector(18.6, -6.7, 0), Vector(6.2, -6.7, 0)), False)
sketch8.addGeometry(Part.LineSegment(Vector(6.2, -6.7, 0), Vector(4, -3, 0)), False)
sketch8.addGeometry(Part.ArcOfCircle(Part.Circle(Vector(0, 0, 0), Vector(0, 0, 1), 5), math.radians(-37), math.radians(217)), False)
sketch8.addGeometry(Part.LineSegment(Vector(-4, -3, 0), Vector(-7, -8.2, 0)), False)
sketch8.addGeometry(Part.LineSegment(Vector(-7, -8.2, 0), Vector(31.8, -8.2, 0)), False)
sketch8.addGeometry(Part.LineSegment(Vector(31.8, -8.2, 0), Vector(28.8, -3, 0)), False)
sketch8.addGeometry(Part.ArcOfCircle(Part.Circle(Vector(24.8, 0, 0), Vector(0, 0, 1), 5), math.radians(-37), math.radians(217)), False)
sketch8.addConstraint(Sketcher.Constraint("Coincident", 0, 2, 1, 1))
sketch8.addConstraint(Sketcher.Constraint("Coincident", 1, 2, 2, 1))
sketch8.addConstraint(Sketcher.Constraint("Coincident", 2, 2, 3, 1))
sketch8.addConstraint(Sketcher.Constraint("Coincident", 3, 2, 4, 1))
sketch8.addConstraint(Sketcher.Constraint("Coincident", 4, 2, 5, 1))
sketch8.addConstraint(Sketcher.Constraint("Coincident", 5, 2, 6, 1))
sketch8.addConstraint(Sketcher.Constraint("Coincident", 6, 2, 7, 1))
sketch8.addConstraint(Sketcher.Constraint("Coincident", 7, 2, 0, 1))
sketch8.addConstraint(Sketcher.Constraint("Horizontal", 1))
sketch8.addConstraint(Sketcher.Constraint("Horizontal", 5))
sketch8.addConstraint(Sketcher.Constraint("Coincident", 3, 3, -1, 1))
sketch8.addConstraint(Sketcher.Constraint("Equal", 3, 7))
sketch8.addConstraint(Sketcher.Constraint("PointOnObject", 7, 3, -1))
sketch8.addConstraint(Sketcher.Constraint("Parallel", 0, 4))
sketch8.addConstraint(Sketcher.Constraint("Parallel", 2, 6))
sketch8.addConstraint(Sketcher.Constraint("Horizontal", 2, 2, 3, 2))
sketch8.addConstraint(Sketcher.Constraint("Horizontal", 3, 2, 6, 2))
sketch8.addConstraint(Sketcher.Constraint("Horizontal", 6, 2, 7, 2))
sketch8.addConstraint(Sketcher.Constraint("Equal", 0, 2))
sketch8.addConstraint(Sketcher.Constraint("Radius", 3, 5.0))
sketch8.addConstraint(Sketcher.Constraint("Angle", 0, Q("-120 deg")))
sketch8.addConstraint(Sketcher.Constraint("Distance", 4, 6.0))
sketch8.addConstraint(Sketcher.Constraint("DistanceX", 1, 2, 1, 1, 12.5))
sketch8.addConstraint(Sketcher.Constraint("DistanceX", 5, 1, 5, 2, 38.8))
sketch8.addConstraint(Sketcher.Constraint("DistanceX", -1, 1, 2, 2, 4.0))
pocket5 = doc.addObject("PartDesign::Pocket", "Pocket004")
body.addObject(pocket5)
pocket5.Profile = sketch8
pocket5.Length = 10.8

# Sketch on XY plane
sketch9 = doc.addObject("Sketcher::SketchObject", "Sketch008")
body.addObject(sketch9)
sketch9.AttachmentSupport = (doc.XY_Plane, [""])
sketch9.MapMode = "FlatFace"
sketch9.AttachmentOffset = App.Placement(Vector(0, 0, 209.2), App.Rotation())
sketch9.addGeometry(Part.Circle(Vector(0, 0, 0), Vector(0, 0, 1), 2), False)
sketch9.addGeometry(Part.Circle(Vector(24.8, 0, 0), Vector(0, 0, 1), 2), False)
sketch9.addConstraint(Sketcher.Constraint("Coincident", 0, 3, -1, 1))
sketch9.addConstraint(Sketcher.Constraint("Equal", 0, 1))
sketch9.addConstraint(Sketcher.Constraint("PointOnObject", 1, 3, -1))
sketch9.addConstraint(Sketcher.Constraint("Diameter", 0, 4.0))
sketch9.addConstraint(Sketcher.Constraint("DistanceX", -1, 1, 1, 3, 24.8))
pocket6 = doc.addObject("PartDesign::Pocket", "Pocket005")
body.addObject(pocket6)
pocket6.Profile = sketch9
pocket6.Length = 7

# Sketch on XY plane
sketch10 = doc.addObject("Sketcher::SketchObject", "Sketch009")
body.addObject(sketch10)
sketch10.AttachmentSupport = (doc.XY_Plane, [""])
sketch10.MapMode = "FlatFace"
sketch10.AttachmentOffset = App.Placement(Vector(0, 0, 10.8), App.Rotation())
sketch10.addGeometry(Part.Circle(Vector(0, 0, 0), Vector(0, 0, 1), 2), False)
sketch10.addGeometry(Part.Circle(Vector(24.8, 0, 0), Vector(0, 0, 1), 2), False)
sketch10.addConstraint(Sketcher.Constraint("Coincident", 0, 3, -1, 1))
sketch10.addConstraint(Sketcher.Constraint("Equal", 0, 1))
sketch10.addConstraint(Sketcher.Constraint("PointOnObject", 1, 3, -1))
sketch10.addConstraint(Sketcher.Constraint("Diameter", 0, 4.0))
sketch10.addConstraint(Sketcher.Constraint("DistanceX", -1, 1, 1, 3, 24.8))
pocket7 = doc.addObject("PartDesign::Pocket", "Pocket006")
body.addObject(pocket7)
pocket7.Profile = sketch10
pocket7.Length = 7
pocket7.Reversed = True

doc.recompute()
